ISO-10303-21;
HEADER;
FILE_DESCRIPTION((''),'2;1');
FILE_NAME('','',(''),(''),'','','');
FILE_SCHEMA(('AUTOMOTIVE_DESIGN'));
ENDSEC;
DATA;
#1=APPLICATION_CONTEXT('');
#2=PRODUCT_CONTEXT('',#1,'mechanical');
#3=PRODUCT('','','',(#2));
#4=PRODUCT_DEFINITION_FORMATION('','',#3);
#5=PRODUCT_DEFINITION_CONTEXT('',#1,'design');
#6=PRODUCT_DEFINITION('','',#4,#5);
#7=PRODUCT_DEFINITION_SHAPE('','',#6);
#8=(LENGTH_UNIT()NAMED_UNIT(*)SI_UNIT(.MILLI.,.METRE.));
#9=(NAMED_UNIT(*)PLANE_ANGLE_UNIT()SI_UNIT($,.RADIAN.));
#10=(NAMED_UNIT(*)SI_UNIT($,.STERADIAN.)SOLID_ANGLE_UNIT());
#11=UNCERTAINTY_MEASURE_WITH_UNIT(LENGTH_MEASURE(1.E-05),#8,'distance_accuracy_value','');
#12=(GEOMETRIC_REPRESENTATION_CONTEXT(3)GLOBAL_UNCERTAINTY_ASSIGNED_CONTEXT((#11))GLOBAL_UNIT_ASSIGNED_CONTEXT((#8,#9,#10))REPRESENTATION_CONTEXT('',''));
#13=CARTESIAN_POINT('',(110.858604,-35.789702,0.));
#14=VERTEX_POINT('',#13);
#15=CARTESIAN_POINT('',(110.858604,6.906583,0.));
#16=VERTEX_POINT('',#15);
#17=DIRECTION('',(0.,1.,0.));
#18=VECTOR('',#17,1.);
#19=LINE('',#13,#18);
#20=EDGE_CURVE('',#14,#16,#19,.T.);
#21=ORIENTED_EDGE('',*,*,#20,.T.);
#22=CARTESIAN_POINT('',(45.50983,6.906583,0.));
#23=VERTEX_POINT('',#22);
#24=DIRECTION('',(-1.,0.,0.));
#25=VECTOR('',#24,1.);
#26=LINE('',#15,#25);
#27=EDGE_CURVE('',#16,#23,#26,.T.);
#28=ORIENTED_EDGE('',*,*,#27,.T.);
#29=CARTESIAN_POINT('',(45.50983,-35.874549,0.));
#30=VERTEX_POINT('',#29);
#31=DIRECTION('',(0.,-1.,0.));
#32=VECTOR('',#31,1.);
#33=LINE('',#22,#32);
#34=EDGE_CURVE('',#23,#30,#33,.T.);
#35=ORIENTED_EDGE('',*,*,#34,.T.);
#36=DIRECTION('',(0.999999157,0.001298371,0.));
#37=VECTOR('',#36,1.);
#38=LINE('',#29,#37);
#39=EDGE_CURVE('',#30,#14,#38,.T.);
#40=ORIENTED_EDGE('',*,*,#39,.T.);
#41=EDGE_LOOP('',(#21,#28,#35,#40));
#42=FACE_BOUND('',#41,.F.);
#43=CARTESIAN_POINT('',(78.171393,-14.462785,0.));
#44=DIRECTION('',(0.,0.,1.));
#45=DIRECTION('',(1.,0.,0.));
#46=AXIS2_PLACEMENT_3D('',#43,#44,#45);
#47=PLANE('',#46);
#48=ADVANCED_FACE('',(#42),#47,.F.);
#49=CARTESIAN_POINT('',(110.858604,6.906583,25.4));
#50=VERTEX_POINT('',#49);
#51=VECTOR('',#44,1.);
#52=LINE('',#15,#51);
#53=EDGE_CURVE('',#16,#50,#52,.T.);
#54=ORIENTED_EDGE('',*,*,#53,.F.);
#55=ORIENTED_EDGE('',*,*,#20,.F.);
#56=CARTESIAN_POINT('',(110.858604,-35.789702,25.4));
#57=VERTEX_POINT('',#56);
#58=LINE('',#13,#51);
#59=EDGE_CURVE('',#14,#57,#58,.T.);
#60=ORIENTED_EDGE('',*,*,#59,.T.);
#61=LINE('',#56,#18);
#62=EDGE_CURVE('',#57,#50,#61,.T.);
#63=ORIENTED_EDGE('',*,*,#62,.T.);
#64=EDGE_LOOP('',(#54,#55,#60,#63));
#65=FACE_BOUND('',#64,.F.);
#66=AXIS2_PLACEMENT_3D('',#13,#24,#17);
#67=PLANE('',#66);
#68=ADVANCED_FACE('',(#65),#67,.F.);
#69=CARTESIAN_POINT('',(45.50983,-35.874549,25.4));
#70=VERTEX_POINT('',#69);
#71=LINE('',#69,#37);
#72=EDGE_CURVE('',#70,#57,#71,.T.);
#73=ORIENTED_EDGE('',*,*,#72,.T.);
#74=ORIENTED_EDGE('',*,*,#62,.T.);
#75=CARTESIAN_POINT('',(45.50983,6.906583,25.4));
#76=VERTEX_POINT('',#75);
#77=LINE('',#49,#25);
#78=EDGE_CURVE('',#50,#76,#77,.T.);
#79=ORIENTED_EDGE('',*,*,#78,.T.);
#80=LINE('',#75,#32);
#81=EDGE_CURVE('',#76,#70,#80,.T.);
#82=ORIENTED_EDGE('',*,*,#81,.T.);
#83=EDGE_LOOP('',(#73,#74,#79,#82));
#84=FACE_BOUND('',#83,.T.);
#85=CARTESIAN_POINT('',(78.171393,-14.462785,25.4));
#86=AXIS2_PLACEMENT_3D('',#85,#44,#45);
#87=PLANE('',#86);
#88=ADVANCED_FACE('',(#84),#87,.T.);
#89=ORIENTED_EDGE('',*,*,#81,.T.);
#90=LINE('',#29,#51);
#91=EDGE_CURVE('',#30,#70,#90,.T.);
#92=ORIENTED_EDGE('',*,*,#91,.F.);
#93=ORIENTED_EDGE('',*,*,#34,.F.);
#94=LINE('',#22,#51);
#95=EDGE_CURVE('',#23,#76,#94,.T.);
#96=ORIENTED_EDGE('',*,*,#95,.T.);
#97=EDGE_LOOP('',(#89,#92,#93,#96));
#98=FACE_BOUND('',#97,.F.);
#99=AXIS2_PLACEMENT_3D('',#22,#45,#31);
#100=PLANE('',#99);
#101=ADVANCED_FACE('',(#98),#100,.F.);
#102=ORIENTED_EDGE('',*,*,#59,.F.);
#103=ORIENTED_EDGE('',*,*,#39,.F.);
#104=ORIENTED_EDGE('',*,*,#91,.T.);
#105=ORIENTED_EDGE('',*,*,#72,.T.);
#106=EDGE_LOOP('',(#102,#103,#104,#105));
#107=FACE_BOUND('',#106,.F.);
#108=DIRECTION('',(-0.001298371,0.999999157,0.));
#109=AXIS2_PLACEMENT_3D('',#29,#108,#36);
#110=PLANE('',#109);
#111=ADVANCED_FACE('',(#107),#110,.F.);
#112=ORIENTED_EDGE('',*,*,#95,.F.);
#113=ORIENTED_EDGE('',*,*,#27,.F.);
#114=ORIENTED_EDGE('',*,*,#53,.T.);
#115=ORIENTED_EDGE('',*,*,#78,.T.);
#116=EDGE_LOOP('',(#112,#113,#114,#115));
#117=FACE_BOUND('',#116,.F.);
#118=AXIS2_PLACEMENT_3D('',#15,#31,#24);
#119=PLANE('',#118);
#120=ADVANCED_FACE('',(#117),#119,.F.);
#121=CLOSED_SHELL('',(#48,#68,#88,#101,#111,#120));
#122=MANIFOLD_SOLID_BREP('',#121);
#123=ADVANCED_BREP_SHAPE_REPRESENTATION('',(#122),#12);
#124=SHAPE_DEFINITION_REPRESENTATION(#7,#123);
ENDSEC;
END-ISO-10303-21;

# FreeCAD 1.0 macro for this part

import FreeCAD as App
import Part
import Sketcher

V = App.Vector
Q = App.Units.Quantity

doc = App.newDocument("Part")
body = doc.addObject("PartDesign::Body", "Body")

# Sketch on XY plane
sketch1 = doc.addObject("Sketcher::SketchObject", "Sketch")
body.addObject(sketch1)
sketch1.AttachmentSupport = (doc.XY_Plane, [""])
sketch1.MapMode = "FlatFace"
sketch1.addGeometry([
    Part.LineSegment(V(111, 7, 0), V(46, 7, 0)),
    Part.LineSegment(V(46, 7, 0), V(46, -36, 0)),
    Part.LineSegment(V(46, -36, 0), V(111, -36, 0)),
    Part.LineSegment(V(111, -36, 0), V(111, 7, 0)),
], False)
sketch1.addConstraint([
    Sketcher.Constraint("Coincident", 0, 2, 1, 1),
    Sketcher.Constraint("Coincident", 1, 2, 2, 1),
    Sketcher.Constraint("Coincident", 2, 2, 3, 1),
    Sketcher.Constraint("Coincident", 3, 2, 0, 1),
    Sketcher.Constraint("Horizontal", 0),
    Sketcher.Constraint("Vertical", 1),
    Sketcher.Constraint("Vertical", 3),
    Sketcher.Constraint("DistanceY", 2, 2, -1, 1, Q("35.789702 mm")),
    Sketcher.Constraint("Distance", 2, Q("65.348829 mm")),
    Sketcher.Constraint("DistanceY", 1, 2, 1, 1, Q("42.781132 mm")),
    Sketcher.Constraint("DistanceY", 3, 1, 3, 2, Q("42.696285 mm")),
    Sketcher.Constraint("DistanceX", -1, 1, 0, 2, Q("45.50983 mm")),
])
pad1 = doc.addObject("PartDesign::Pad", "Pad")
body.addObject(pad1)
pad1.Profile = sketch1
pad1.Length = Q("1 in")

# Sketch on XY plane
sketch2 = doc.addObject("Sketcher::SketchObject", "Sketch001")
body.addObject(sketch2)
sketch2.AttachmentSupport = (doc.XY_Plane, [""])
sketch2.MapMode = "FlatFace"
sketch2.addGeometry([
    Part.LineSegment(V(111, 7, 0), V(46, 7, 0)),
    Part.LineSegment(V(46, 7, 0), V(46, -36, 0)),
    Part.LineSegment(V(46, -36, 0), V(111, -36, 0)),
    Part.LineSegment(V(111, -36, 0), V(111, 7, 0)),
], False)
sketch2.addConstraint([
    Sketcher.Constraint("Coincident", 0, 2, 1, 1),
    Sketcher.Constraint("Coincident", 1, 2, 2, 1),
    Sketcher.Constraint("Coincident", 2, 2, 3, 1),
    Sketcher.Constraint("Coincident", 3, 2, 0, 1),
    Sketcher.Constraint("Horizontal", 0),
    Sketcher.Constraint("Vertical", 1),
    Sketcher.Constraint("Vertical", 3),
    Sketcher.Constraint("DistanceY", 2, 2, -1, 1, Q("35.789702 mm")),
    Sketcher.Constraint("Distance", 2, Q("65.348829 mm")),
    Sketcher.Constraint("DistanceY", 1, 2, 1, 1, Q("42.781132 mm")),
    Sketcher.Constraint("DistanceY", 3, 1, 3, 2, Q("42.696285 mm")),
    Sketcher.Constraint("DistanceX", -1, 1, 0, 2, Q("45.50983 mm")),
])
pad2 = doc.addObject("PartDesign::Pad", "Pad001")
body.addObject(pad2)
pad2.Profile = sketch2
pad2.Length = Q("1 in")

doc.recompute()
